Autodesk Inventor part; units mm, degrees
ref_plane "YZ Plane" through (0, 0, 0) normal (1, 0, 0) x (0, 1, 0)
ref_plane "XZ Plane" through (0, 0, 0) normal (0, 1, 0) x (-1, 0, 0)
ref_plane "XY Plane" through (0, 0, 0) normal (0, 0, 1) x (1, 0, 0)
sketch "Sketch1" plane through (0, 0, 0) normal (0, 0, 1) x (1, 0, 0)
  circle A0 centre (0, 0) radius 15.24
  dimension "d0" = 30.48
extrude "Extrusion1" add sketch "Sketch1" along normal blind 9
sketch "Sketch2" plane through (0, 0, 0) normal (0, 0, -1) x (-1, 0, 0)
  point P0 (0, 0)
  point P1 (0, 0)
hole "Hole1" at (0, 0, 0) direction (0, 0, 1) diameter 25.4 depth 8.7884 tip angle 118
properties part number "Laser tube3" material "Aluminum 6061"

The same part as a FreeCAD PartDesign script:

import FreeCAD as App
import Part
import Sketcher
from FreeCAD import Vector
Q = App.Units.Quantity

doc = App.newDocument("Part")
params = doc.addObject("Spreadsheet::Sheet", "Params")
for row, (alias, value) in enumerate([
    ("sketch1_diameter", "1.2 in"),
    ("pad1_length", "9 mm"),
    ("sketch2_diameter", "1 in"),
    ("hole_diameter", "1 in"),
    ("hole_depth", "0.346 in"),
], start=1):
    params.set(f"A{row}", alias)
    params.set(f"B{row}", "=" + value)
    params.setAlias(f"B{row}", alias)

body = doc.addObject("PartDesign::Body", "Body")

sketch1 = body.newObject("Sketcher::SketchObject", "Sketch")
sketch1.AttachmentSupport = (doc.getObject("XY_Plane"), [""])
sketch1.MapMode = "FlatFace"
sketch1.addGeometry(Part.Circle(Vector(0, 0, 0), Vector(0, 0, 1), 15), False)
sketch1.addConstraint([
    Sketcher.Constraint("Coincident", 0, 3, -1, 1),
    Sketcher.Constraint("Diameter", 0, Q("1.2 in")),
])
sketch1.setExpression("Constraints[1]", "Params.sketch1_diameter")
pad1 = body.newObject("PartDesign::Pad", "Pad")
pad1.Profile = sketch1
pad1.setExpression("Length", "Params.pad1_length")

sketch2 = body.newObject("Sketcher::SketchObject", "Sketch001")
sketch2.AttachmentSupport = (doc.getObject("XY_Plane"), [""])
sketch2.MapMode = "FlatFace"
sketch2.addGeometry(Part.Circle(Vector(0, 0, 0), Vector(0, 0, 1), 13), False)
sketch2.addConstraint([
    Sketcher.Constraint("Coincident", 0, 3, -1, 1),
    Sketcher.Constraint("Diameter", 0, Q("1 in")),
])
sketch2.setExpression("Constraints[1]", "Params.sketch2_diameter")
doc.recompute()
hole = body.newObject("PartDesign::Hole", "Hole")
hole.Profile = sketch2
hole.ThreadType = "None"
hole.setExpression("Diameter", "Params.hole_diameter")
hole.DepthType = "Dimension"
hole.setExpression("Depth", "Params.hole_depth")
hole.DrillPoint = "Angled"
hole.DrillPointAngle = 118
hole.Reversed = True

doc.recompute()
